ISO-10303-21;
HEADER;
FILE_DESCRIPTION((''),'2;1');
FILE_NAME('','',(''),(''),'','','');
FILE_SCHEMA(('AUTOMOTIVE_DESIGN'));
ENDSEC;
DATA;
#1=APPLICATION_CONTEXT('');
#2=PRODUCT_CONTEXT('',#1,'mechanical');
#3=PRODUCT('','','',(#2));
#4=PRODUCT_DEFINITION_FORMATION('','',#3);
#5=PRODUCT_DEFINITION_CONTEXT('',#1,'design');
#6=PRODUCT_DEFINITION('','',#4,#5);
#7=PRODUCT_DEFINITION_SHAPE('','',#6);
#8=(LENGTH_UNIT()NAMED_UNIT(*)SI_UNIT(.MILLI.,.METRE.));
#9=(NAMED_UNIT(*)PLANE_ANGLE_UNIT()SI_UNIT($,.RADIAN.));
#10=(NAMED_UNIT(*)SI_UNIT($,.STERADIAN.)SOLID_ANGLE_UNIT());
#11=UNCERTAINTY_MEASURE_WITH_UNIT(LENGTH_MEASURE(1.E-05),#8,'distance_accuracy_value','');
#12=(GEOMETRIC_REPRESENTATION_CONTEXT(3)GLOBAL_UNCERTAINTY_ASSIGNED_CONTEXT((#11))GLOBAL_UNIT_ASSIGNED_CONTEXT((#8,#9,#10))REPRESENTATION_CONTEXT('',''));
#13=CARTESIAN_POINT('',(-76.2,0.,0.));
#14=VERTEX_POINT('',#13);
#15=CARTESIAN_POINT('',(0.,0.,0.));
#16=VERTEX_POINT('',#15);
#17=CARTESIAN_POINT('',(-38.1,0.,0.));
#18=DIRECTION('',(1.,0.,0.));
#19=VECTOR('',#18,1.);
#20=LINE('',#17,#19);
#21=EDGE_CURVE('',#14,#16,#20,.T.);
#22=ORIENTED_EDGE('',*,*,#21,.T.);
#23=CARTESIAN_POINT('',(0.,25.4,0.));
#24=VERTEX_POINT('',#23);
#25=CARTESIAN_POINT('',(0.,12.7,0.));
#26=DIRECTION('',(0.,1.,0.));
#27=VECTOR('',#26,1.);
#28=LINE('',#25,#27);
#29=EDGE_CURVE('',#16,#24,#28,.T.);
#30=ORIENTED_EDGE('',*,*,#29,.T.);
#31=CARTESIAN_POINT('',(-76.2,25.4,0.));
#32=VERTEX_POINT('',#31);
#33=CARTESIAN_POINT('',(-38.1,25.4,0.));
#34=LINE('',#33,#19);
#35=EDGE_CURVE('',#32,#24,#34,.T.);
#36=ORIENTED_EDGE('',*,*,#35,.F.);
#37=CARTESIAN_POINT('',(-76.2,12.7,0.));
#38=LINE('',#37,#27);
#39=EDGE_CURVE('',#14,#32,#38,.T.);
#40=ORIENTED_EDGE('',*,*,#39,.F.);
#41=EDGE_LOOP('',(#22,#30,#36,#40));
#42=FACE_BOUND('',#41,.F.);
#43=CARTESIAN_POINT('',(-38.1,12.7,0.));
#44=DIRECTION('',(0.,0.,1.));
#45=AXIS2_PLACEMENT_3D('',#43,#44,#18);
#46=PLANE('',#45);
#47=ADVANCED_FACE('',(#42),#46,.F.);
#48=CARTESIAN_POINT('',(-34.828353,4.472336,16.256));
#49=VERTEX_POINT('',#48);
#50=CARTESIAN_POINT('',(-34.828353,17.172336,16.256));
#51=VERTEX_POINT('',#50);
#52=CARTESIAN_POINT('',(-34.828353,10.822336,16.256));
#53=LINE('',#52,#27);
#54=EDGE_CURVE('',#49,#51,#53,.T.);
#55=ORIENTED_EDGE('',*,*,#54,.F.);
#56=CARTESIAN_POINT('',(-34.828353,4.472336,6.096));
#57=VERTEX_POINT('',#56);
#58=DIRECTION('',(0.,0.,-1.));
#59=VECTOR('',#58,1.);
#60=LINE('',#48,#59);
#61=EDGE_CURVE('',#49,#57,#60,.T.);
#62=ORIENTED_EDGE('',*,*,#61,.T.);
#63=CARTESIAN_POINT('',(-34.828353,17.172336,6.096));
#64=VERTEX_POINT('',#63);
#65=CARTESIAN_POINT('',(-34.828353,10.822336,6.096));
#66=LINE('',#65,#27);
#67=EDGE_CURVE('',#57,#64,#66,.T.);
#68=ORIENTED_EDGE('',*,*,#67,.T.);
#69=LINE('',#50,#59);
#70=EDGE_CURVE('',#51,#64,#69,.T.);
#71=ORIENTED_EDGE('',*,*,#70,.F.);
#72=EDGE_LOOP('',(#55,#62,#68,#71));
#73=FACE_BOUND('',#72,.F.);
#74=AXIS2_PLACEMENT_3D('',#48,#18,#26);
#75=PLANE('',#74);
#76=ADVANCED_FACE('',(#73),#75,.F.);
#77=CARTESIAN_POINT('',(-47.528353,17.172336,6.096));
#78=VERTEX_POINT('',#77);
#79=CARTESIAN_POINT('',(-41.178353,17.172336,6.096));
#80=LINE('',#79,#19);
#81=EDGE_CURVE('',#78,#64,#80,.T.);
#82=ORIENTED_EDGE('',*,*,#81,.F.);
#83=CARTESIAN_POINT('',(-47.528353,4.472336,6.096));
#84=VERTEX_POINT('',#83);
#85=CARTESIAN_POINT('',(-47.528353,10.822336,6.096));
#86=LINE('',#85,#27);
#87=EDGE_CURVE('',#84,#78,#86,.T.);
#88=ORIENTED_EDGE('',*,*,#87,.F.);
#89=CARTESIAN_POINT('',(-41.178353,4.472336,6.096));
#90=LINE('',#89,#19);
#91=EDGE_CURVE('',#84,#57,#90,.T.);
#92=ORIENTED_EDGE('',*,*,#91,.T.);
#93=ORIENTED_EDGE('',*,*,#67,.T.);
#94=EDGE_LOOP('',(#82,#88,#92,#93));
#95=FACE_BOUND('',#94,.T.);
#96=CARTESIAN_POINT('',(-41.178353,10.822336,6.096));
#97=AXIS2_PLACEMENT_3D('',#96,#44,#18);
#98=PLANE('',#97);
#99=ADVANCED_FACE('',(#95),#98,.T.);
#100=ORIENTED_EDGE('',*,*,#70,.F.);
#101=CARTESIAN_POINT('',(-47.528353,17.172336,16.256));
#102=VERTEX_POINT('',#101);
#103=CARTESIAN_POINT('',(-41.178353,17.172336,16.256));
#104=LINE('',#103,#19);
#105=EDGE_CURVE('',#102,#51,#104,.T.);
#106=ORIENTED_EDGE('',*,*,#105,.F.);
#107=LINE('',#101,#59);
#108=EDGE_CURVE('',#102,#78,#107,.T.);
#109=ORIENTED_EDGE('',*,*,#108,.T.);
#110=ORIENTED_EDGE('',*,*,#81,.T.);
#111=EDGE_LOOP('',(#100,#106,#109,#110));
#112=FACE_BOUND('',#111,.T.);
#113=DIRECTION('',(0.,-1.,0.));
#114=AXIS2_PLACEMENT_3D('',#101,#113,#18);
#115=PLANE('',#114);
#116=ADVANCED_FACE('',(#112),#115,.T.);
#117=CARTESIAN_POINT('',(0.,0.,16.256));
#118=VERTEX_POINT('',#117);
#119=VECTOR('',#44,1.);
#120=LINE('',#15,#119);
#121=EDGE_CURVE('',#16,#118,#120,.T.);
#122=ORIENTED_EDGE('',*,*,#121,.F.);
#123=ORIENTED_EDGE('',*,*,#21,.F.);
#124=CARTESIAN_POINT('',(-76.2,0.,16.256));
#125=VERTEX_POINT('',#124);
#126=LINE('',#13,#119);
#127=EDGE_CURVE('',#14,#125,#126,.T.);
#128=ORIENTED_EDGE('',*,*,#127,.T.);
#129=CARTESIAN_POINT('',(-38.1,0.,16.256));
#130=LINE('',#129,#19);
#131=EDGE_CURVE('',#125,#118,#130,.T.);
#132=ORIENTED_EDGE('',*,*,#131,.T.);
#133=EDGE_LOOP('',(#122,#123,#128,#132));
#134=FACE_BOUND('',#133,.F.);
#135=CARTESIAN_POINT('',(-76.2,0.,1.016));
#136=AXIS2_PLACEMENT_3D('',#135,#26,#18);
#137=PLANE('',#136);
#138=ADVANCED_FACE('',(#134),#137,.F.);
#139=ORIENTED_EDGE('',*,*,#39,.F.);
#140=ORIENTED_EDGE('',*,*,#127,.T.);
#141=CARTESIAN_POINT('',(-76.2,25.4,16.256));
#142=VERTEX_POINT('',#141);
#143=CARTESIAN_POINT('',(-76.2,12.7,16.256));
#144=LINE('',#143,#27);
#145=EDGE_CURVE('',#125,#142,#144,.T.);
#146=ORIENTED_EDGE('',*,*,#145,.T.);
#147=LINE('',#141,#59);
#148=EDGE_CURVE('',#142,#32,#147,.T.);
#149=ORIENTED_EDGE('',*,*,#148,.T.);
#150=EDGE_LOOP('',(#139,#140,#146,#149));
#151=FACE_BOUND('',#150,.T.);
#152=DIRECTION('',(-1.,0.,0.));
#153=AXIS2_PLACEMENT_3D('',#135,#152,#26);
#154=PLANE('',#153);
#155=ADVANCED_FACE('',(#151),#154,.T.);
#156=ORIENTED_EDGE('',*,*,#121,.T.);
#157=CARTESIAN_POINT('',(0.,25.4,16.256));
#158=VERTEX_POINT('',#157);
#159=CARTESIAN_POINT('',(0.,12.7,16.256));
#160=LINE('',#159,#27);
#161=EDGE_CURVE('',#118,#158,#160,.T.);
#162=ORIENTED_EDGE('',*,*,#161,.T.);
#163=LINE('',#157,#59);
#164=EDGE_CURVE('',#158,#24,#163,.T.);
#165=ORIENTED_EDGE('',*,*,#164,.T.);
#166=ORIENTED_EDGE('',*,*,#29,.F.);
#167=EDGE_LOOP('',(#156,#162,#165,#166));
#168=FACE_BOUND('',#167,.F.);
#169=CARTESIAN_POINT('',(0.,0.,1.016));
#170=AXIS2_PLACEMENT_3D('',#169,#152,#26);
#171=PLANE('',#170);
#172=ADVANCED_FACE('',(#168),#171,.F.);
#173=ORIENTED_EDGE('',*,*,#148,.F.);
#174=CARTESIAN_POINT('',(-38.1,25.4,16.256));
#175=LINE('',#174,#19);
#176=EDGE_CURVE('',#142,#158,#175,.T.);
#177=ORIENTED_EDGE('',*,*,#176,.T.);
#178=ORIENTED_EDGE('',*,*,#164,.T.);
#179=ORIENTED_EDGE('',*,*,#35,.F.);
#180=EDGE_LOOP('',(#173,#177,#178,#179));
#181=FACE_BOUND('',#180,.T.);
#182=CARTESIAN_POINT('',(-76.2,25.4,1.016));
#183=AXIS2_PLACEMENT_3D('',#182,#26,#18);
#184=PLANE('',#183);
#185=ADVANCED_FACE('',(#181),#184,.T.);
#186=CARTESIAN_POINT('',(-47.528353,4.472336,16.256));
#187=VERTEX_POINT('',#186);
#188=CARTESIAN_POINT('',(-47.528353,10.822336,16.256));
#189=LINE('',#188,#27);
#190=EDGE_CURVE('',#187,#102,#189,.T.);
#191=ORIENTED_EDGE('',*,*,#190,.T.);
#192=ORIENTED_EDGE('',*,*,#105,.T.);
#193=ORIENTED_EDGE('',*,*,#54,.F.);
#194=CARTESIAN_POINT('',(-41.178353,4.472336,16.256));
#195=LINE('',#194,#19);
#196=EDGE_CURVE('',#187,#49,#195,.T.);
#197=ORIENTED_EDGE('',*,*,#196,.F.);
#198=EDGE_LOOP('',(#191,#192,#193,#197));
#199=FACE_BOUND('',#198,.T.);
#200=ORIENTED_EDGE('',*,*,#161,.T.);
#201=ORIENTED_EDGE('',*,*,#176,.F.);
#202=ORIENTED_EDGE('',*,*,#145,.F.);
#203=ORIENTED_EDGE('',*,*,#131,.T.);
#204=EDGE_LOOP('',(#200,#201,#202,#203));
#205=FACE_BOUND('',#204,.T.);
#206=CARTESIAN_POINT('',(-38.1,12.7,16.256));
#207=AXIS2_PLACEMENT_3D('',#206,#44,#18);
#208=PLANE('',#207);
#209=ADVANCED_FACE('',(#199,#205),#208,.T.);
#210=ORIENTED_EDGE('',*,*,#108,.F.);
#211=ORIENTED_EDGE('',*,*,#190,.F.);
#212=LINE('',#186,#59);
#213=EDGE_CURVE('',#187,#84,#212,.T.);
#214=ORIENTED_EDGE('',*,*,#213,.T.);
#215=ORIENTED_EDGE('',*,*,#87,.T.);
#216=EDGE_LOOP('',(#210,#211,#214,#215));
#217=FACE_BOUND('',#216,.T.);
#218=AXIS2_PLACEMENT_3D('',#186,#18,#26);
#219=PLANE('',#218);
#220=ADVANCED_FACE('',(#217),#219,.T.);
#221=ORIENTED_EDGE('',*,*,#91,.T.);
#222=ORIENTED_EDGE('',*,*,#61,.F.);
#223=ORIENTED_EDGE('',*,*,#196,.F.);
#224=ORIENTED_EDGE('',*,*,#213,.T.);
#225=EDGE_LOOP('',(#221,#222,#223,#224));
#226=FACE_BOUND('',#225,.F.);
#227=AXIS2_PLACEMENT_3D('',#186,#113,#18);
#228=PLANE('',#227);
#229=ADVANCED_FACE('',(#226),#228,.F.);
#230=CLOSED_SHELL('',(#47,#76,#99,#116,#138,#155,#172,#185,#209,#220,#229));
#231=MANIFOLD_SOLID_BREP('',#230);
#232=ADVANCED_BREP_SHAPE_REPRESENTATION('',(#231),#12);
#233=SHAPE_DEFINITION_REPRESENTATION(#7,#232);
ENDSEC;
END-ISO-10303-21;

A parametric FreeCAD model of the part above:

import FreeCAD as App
import Part
import Sketcher

V = App.Vector
Q = App.Units.Quantity


def add_polygon(sketch, points):
    """Adds a closed chain of lines whose ends are joined by coincident constraints."""
    first, n = sketch.GeometryCount, len(points)
    for a, b in zip(points, points[1:] + points[:1]):
        sketch.addGeometry(Part.LineSegment(App.Vector(*a, 0), App.Vector(*b, 0)), False)
    for i in range(n):
        sketch.addConstraint(Sketcher.Constraint("Coincident", first + i, 2, first + (i + 1) % n, 1))

doc = App.newDocument("Part")
params = doc.addObject("Spreadsheet::Sheet", "Params")
for row, (alias, value) in enumerate([
    ("sketch1_width", "3 in"),
    ("sketch1_height", "1 in"),
    ("pad1_length", "0.04 in"),
    ("sketch2_width", "3 in"),
    ("sketch2_height", "1 in"),
    ("pad2_length", "0.6 in"),
    ("sketch3_width", "0.5 in"),
    ("pocket1_length", "0.4 in"),
], start=1):
    params.set(f"A{row}", alias)
    params.set(f"B{row}", "=" + value)
    params.setAlias(f"B{row}", alias)

body = doc.addObject("PartDesign::Body", "Body")

# Sketch on XY plane
sketch1 = body.newObject("Sketcher::SketchObject", "Sketch")
sketch1.AttachmentSupport = (doc.getObject("XY_Plane"), [""])
sketch1.MapMode = "FlatFace"
add_polygon(sketch1, [(-76, 25), (-76, 0), (0, 0), (0, 25)])  # lines 0-3
sketch1.addConstraint(Sketcher.Constraint("Vertical", 0))
sketch1.addConstraint(Sketcher.Constraint("Horizontal", 1))
sketch1.addConstraint(Sketcher.Constraint("Vertical", 2))
sketch1.addConstraint(Sketcher.Constraint("Horizontal", 3))
sketch1.addConstraint(Sketcher.Constraint("Coincident", 1, 2, -1, 1))
sketch1.addConstraint(Sketcher.Constraint("DistanceX", 1, 1, 1, 2, Q("3 in")))
sketch1.addConstraint(Sketcher.Constraint("DistanceY", 0, 2, 0, 1, Q("1 in")))
sketch1.setExpression("Constraints[9]", "Params.sketch1_width")
sketch1.setExpression("Constraints[10]", "Params.sketch1_height")
pad1 = body.newObject("PartDesign::Pad", "Pad")
pad1.Profile = sketch1
pad1.setExpression("Length", "Params.pad1_length")

# Sketch on XY plane
sketch2 = body.newObject("Sketcher::SketchObject", "Sketch001")
sketch2.AttachmentSupport = (doc.getObject("XY_Plane"), [""])
sketch2.MapMode = "FlatFace"
sketch2.AttachmentOffset = App.Placement(V(0, 0, 0.04 * 25.4), App.Rotation())
add_polygon(sketch2, [(-76, 25), (-76, 0), (0, 0), (0, 25)])  # lines 0-3
sketch2.addConstraint(Sketcher.Constraint("Vertical", 0))
sketch2.addConstraint(Sketcher.Constraint("Horizontal", 1))
sketch2.addConstraint(Sketcher.Constraint("Vertical", 2))
sketch2.addConstraint(Sketcher.Constraint("Horizontal", 3))
sketch2.addConstraint(Sketcher.Constraint("Coincident", 1, 2, -1, 1))
sketch2.addConstraint(Sketcher.Constraint("DistanceX", 1, 1, 1, 2, Q("3 in")))
sketch2.addConstraint(Sketcher.Constraint("DistanceY", 0, 2, 0, 1, Q("1 in")))
sketch2.setExpression("Constraints[9]", "Params.sketch2_width")
sketch2.setExpression("Constraints[10]", "Params.sketch2_height")
pad2 = body.newObject("PartDesign::Pad", "Pad001")
pad2.Profile = sketch2
pad2.setExpression("Length", "Params.pad2_length")

# Sketch on XY plane
sketch3 = body.newObject("Sketcher::SketchObject", "Sketch002")
sketch3.AttachmentSupport = (doc.getObject("XY_Plane"), [""])
sketch3.MapMode = "FlatFace"
sketch3.AttachmentOffset = App.Placement(V(0, 0, 0.64 * 25.4), App.Rotation())
add_polygon(sketch3, [(-48, 17), (-48, 4), (-35, 4), (-35, 17)])  # lines 0-3
sketch3.addConstraint(Sketcher.Constraint("Vertical", 0))
sketch3.addConstraint(Sketcher.Constraint("Horizontal", 1))
sketch3.addConstraint(Sketcher.Constraint("Vertical", 2))
sketch3.addConstraint(Sketcher.Constraint("Horizontal", 3))
sketch3.addConstraint(Sketcher.Constraint("Equal", 3, 0))
sketch3.addConstraint(Sketcher.Constraint("DistanceX", 1, 1, 1, 2, Q("0.5 in")))
sketch3.addConstraint(Sketcher.Constraint("DistanceX", 0, 2, -1, 1, Q("47.528353 mm")))
sketch3.addConstraint(Sketcher.Constraint("DistanceY", -1, 1, 0, 2, Q("4.472336 mm")))
sketch3.setExpression("Constraints[9]", "Params.sketch3_width")
pocket1 = body.newObject("PartDesign::Pocket", "Pocket")
pocket1.Profile = sketch3
pocket1.setExpression("Length", "Params.pocket1_length")

doc.recompute()
